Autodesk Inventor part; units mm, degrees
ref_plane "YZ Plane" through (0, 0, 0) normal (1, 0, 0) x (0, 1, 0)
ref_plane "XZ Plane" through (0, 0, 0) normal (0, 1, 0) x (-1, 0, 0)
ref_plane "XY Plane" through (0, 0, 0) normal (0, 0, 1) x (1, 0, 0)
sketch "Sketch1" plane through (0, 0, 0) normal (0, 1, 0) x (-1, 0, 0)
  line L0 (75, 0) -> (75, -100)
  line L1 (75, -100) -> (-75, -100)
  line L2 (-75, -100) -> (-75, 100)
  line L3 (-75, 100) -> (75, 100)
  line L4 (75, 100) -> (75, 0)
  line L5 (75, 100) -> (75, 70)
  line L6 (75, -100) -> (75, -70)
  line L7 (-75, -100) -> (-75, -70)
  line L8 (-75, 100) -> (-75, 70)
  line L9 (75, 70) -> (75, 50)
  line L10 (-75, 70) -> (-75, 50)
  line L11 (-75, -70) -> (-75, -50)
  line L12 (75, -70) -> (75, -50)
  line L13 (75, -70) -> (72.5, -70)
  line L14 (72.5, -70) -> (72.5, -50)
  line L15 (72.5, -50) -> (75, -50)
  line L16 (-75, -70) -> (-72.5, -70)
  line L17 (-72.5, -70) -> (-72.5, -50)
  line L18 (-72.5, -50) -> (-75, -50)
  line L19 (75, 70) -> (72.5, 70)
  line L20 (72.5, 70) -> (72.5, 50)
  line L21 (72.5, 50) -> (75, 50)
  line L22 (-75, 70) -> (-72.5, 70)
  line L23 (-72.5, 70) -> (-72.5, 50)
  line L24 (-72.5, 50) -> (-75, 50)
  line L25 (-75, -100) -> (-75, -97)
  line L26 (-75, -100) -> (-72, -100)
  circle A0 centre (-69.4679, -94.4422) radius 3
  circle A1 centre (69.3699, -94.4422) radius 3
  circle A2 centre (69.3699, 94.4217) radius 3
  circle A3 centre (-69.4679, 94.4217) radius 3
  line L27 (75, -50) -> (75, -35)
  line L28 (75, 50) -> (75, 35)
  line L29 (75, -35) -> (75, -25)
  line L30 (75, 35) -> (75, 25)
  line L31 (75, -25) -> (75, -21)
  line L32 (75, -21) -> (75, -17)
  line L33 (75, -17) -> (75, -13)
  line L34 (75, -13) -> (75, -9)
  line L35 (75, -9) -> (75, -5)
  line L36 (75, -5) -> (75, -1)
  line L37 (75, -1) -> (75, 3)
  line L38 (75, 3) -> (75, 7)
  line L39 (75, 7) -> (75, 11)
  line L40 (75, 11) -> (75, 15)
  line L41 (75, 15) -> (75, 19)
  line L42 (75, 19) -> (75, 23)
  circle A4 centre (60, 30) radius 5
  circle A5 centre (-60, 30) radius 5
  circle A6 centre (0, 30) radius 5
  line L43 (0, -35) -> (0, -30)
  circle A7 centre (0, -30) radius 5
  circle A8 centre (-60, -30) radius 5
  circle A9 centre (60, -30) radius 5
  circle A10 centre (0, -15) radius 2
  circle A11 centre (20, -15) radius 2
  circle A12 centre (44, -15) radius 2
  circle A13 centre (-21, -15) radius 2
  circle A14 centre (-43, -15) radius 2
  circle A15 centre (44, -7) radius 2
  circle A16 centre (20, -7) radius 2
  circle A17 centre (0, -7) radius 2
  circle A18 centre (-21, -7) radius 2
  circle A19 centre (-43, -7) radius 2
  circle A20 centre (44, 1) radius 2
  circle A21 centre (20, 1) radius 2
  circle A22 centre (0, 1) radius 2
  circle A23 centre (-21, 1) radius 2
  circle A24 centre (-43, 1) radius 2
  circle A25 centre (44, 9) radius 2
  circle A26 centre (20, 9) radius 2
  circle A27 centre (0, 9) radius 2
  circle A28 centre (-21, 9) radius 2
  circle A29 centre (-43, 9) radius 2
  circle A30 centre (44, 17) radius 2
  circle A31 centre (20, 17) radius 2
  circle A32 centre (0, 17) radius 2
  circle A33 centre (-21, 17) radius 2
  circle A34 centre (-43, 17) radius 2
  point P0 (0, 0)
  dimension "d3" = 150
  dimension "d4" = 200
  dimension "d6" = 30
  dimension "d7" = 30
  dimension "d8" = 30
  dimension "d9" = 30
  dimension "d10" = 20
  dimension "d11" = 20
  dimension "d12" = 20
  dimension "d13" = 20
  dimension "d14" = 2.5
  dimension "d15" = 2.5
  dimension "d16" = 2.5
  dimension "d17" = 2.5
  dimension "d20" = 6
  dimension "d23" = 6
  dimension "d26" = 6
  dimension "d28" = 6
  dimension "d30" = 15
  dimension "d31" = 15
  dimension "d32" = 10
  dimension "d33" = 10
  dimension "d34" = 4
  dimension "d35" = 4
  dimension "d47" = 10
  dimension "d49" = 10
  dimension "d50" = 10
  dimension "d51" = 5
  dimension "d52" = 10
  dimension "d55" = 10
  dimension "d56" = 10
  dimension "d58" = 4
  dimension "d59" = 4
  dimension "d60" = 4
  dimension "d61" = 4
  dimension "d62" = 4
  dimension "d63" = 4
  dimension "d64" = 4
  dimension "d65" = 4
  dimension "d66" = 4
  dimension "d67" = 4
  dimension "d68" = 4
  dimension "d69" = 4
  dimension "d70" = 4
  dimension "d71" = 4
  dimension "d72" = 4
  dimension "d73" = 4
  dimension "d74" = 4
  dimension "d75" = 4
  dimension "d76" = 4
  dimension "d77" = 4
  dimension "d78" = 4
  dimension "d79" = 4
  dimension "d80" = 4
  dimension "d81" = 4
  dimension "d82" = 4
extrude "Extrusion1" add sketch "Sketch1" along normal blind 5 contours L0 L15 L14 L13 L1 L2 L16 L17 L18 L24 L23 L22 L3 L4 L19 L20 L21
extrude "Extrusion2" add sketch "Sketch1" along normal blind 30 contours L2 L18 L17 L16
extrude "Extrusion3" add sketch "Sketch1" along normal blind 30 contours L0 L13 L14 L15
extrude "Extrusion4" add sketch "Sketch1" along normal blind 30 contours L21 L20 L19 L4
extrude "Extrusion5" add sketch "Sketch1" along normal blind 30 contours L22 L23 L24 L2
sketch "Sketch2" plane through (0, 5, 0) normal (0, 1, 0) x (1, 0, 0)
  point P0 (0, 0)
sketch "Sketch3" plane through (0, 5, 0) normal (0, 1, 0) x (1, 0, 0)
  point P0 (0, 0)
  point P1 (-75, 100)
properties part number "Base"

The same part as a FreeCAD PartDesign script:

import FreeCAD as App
import Part
import Sketcher
from FreeCAD import Vector

doc = App.newDocument("Part")
body = doc.addObject("PartDesign::Body", "Body")

sketch1 = body.newObject("Sketcher::SketchObject", "Sketch")
sketch1.AttachmentSupport = (doc.getObject("XZ_Plane"), [""])
sketch1.MapMode = "FlatFace"
sketch1.addGeometry([
    Part.LineSegment(Vector(-75, -50, 0), Vector(-75, 50, 0)),
    Part.LineSegment(Vector(-75, 50, 0), Vector(-72.5, 50, 0)),
    Part.LineSegment(Vector(-72.5, 50, 0), Vector(-72.5, 70, 0)),
    Part.LineSegment(Vector(-72.5, 70, 0), Vector(-75, 70, 0)),
    Part.LineSegment(Vector(-75, 70, 0), Vector(-75, 100, 0)),
    Part.LineSegment(Vector(-75, 100, 0), Vector(75, 100, 0)),
    Part.LineSegment(Vector(75, 100, 0), Vector(75, 70, 0)),
    Part.LineSegment(Vector(75, 70, 0), Vector(72.5, 70, 0)),
    Part.LineSegment(Vector(72.5, 70, 0), Vector(72.5, 50, 0)),
    Part.LineSegment(Vector(72.5, 50, 0), Vector(75, 50, 0)),
    Part.LineSegment(Vector(75, 50, 0), Vector(75, -50, 0)),
    Part.LineSegment(Vector(75, -50, 0), Vector(72.5, -50, 0)),
    Part.LineSegment(Vector(72.5, -50, 0), Vector(72.5, -70, 0)),
    Part.LineSegment(Vector(72.5, -70, 0), Vector(75, -70, 0)),
    Part.LineSegment(Vector(75, -70, 0), Vector(75, -100, 0)),
    Part.LineSegment(Vector(75, -100, 0), Vector(-75, -100, 0)),
    Part.LineSegment(Vector(-75, -100, 0), Vector(-75, -70, 0)),
    Part.LineSegment(Vector(-75, -70, 0), Vector(-72.5, -70, 0)),
    Part.LineSegment(Vector(-72.5, -70, 0), Vector(-72.5, -50, 0)),
    Part.LineSegment(Vector(-72.5, -50, 0), Vector(-75, -50, 0)),
    Part.Circle(Vector(69.4679, -94.4422, 0), Vector(0, 0, 1), 3),
    Part.Circle(Vector(60, -30, 0), Vector(0, 0, 1), 5),
    Part.Circle(Vector(43, -15, 0), Vector(0, 0, 1), 2),
    Part.Circle(Vector(43, -7, 0), Vector(0, 0, 1), 2),
    Part.Circle(Vector(21, -15, 0), Vector(0, 0, 1), 2),
    Part.Circle(Vector(21, -7, 0), Vector(0, 0, 1), 2),
    Part.Circle(Vector(-69.3699, -94.4422, 0), Vector(0, 0, 1), 3),
    Part.Circle(Vector(0, -30, 0), Vector(0, 0, 1), 5),
    Part.Circle(Vector(0, -15, 0), Vector(0, 0, 1), 2),
    Part.Circle(Vector(0, -7, 0), Vector(0, 0, 1), 2),
    Part.Circle(Vector(-20, -15, 0), Vector(0, 0, 1), 2),
    Part.Circle(Vector(-20, -7, 0), Vector(0, 0, 1), 2),
    Part.Circle(Vector(-60, -30, 0), Vector(0, 0, 1), 5),
    Part.Circle(Vector(-44, -15, 0), Vector(0, 0, 1), 2),
    Part.Circle(Vector(-44, -7, 0), Vector(0, 0, 1), 2),
    Part.Circle(Vector(43, 1, 0), Vector(0, 0, 1), 2),
    Part.Circle(Vector(43, 9, 0), Vector(0, 0, 1), 2),
    Part.Circle(Vector(43, 17, 0), Vector(0, 0, 1), 2),
    Part.Circle(Vector(60, 30, 0), Vector(0, 0, 1), 5),
    Part.Circle(Vector(21, 1, 0), Vector(0, 0, 1), 2),
    Part.Circle(Vector(21, 9, 0), Vector(0, 0, 1), 2),
    Part.Circle(Vector(21, 17, 0), Vector(0, 0, 1), 2),
    Part.Circle(Vector(69.4679, 94.4217, 0), Vector(0, 0, 1), 3),
    Part.Circle(Vector(0, 1, 0), Vector(0, 0, 1), 2),
    Part.Circle(Vector(0, 9, 0), Vector(0, 0, 1), 2),
    Part.Circle(Vector(0, 17, 0), Vector(0, 0, 1), 2),
    Part.Circle(Vector(-20, 1, 0), Vector(0, 0, 1), 2),
    Part.Circle(Vector(-20, 9, 0), Vector(0, 0, 1), 2),
    Part.Circle(Vector(-20, 17, 0), Vector(0, 0, 1), 2),
    Part.Circle(Vector(0, 30, 0), Vector(0, 0, 1), 5),
    Part.Circle(Vector(-44, 1, 0), Vector(0, 0, 1), 2),
    Part.Circle(Vector(-44, 9, 0), Vector(0, 0, 1), 2),
    Part.Circle(Vector(-44, 17, 0), Vector(0, 0, 1), 2),
    Part.Circle(Vector(-60, 30, 0), Vector(0, 0, 1), 5),
    Part.Circle(Vector(-69.3699, 94.4217, 0), Vector(0, 0, 1), 3),
], False)
sketch1.addConstraint([
    Sketcher.Constraint("Coincident", 0, 2, 1, 1),
    Sketcher.Constraint("Coincident", 1, 2, 2, 1),
    Sketcher.Constraint("Coincident", 2, 2, 3, 1),
    Sketcher.Constraint("Coincident", 3, 2, 4, 1),
    Sketcher.Constraint("Coincident", 4, 2, 5, 1),
    Sketcher.Constraint("Coincident", 5, 2, 6, 1),
    Sketcher.Constraint("Coincident", 6, 2, 7, 1),
    Sketcher.Constraint("Coincident", 7, 2, 8, 1),
    Sketcher.Constraint("Coincident", 8, 2, 9, 1),
    Sketcher.Constraint("Coincident", 9, 2, 10, 1),
    Sketcher.Constraint("Coincident", 10, 2, 11, 1),
    Sketcher.Constraint("Coincident", 11, 2, 12, 1),
    Sketcher.Constraint("Coincident", 12, 2, 13, 1),
    Sketcher.Constraint("Coincident", 13, 2, 14, 1),
    Sketcher.Constraint("Coincident", 14, 2, 15, 1),
    Sketcher.Constraint("Coincident", 15, 2, 16, 1),
    Sketcher.Constraint("Coincident", 16, 2, 17, 1),
    Sketcher.Constraint("Coincident", 17, 2, 18, 1),
    Sketcher.Constraint("Coincident", 18, 2, 19, 1),
    Sketcher.Constraint("Coincident", 19, 2, 0, 1),
    Sketcher.Constraint("Vertical", 0),
    Sketcher.Constraint("Horizontal", 1),
    Sketcher.Constraint("Vertical", 2),
    Sketcher.Constraint("Horizontal", 3),
    Sketcher.Constraint("Vertical", 4),
    Sketcher.Constraint("Horizontal", 5),
    Sketcher.Constraint("Vertical", 6),
    Sketcher.Constraint("Horizontal", 7),
    Sketcher.Constraint("Vertical", 8),
    Sketcher.Constraint("Horizontal", 9),
    Sketcher.Constraint("Vertical", 10),
    Sketcher.Constraint("Horizontal", 11),
    Sketcher.Constraint("Vertical", 12),
    Sketcher.Constraint("Horizontal", 13),
    Sketcher.Constraint("Vertical", 14),
    Sketcher.Constraint("Horizontal", 15),
    Sketcher.Constraint("Vertical", 16),
    Sketcher.Constraint("Horizontal", 17),
    Sketcher.Constraint("Vertical", 18),
    Sketcher.Constraint("Horizontal", 19),
    Sketcher.Constraint("Equal", 22, 23),
    Sketcher.Constraint("Equal", 23, 24),
    Sketcher.Constraint("Equal", 24, 25),
    Sketcher.Constraint("Equal", 20, 26),
    Sketcher.Constraint("Equal", 21, 27),
    Sketcher.Constraint("Equal", 25, 28),
    Sketcher.Constraint("Equal", 28, 29),
    Sketcher.Constraint("Equal", 29, 30),
    Sketcher.Constraint("Equal", 30, 31),
    Sketcher.Constraint("Equal", 27, 32),
    Sketcher.Constraint("Equal", 31, 33),
    Sketcher.Constraint("Equal", 33, 34),
    Sketcher.Constraint("Equal", 34, 35),
    Sketcher.Constraint("Equal", 35, 36),
    Sketcher.Constraint("Equal", 36, 37),
    Sketcher.Constraint("Equal", 32, 38),
    Sketcher.Constraint("Equal", 37, 39),
    Sketcher.Constraint("Equal", 39, 40),
    Sketcher.Constraint("Equal", 40, 41),
    Sketcher.Constraint("Equal", 26, 42),
    Sketcher.Constraint("Equal", 41, 43),
    Sketcher.Constraint("Equal", 43, 44),
    Sketcher.Constraint("Equal", 44, 45),
    Sketcher.Constraint("Equal", 45, 46),
    Sketcher.Constraint("Equal", 46, 47),
    Sketcher.Constraint("Equal", 47, 48),
    Sketcher.Constraint("Equal", 38, 49),
    Sketcher.Constraint("Equal", 48, 50),
    Sketcher.Constraint("Equal", 50, 51),
    Sketcher.Constraint("Equal", 51, 52),
    Sketcher.Constraint("Equal", 49, 53),
    Sketcher.Constraint("Equal", 42, 54),
    Sketcher.Constraint("Symmetric", 32, 3, 38, 3, -1, 1),
    Sketcher.Constraint("Symmetric", 27, 3, 49, 3, -1, 1),
    Sketcher.Constraint("Symmetric", 21, 3, 53, 3, -1, 1),
    Sketcher.Constraint("Symmetric", 0, 2, 10, 2, -1, 1),
    Sketcher.Constraint("Symmetric", 2, 2, 12, 2, -1, 1),
    Sketcher.Constraint("Symmetric", 4, 2, 14, 2, -1, 1),
    Sketcher.Constraint("Symmetric", 6, 2, 16, 2, -1, 1),
    Sketcher.Constraint("Symmetric", 8, 2, 18, 2, -1, 1),
    Sketcher.Constraint("Symmetric", 21, 3, 32, 3, -2),
    Sketcher.Constraint("Symmetric", 3, 2, 6, 2, -2),
    Sketcher.Constraint("Symmetric", 1, 2, 8, 2, -2),
    Sketcher.Constraint("PointOnObject", 27, 3, -2),
    Sketcher.Constraint("PointOnObject", 28, 3, -2),
    Sketcher.Constraint("PointOnObject", 29, 3, -2),
    Sketcher.Constraint("PointOnObject", 43, 3, -2),
    Sketcher.Constraint("PointOnObject", 44, 3, -2),
    Sketcher.Constraint("PointOnObject", 45, 3, -2),
    Sketcher.Constraint("Horizontal", 22, 3, 24, 3),
    Sketcher.Constraint("Horizontal", 23, 3, 25, 3),
    Sketcher.Constraint("Horizontal", 20, 3, 26, 3),
    Sketcher.Constraint("Horizontal", 21, 3, 27, 3),
    Sketcher.Constraint("Horizontal", 24, 3, 28, 3),
    Sketcher.Constraint("Horizontal", 25, 3, 29, 3),
    Sketcher.Constraint("Horizontal", 28, 3, 30, 3),
    Sketcher.Constraint("Horizontal", 29, 3, 31, 3),
    Sketcher.Constraint("Horizontal", 30, 3, 33, 3),
    Sketcher.Constraint("Horizontal", 31, 3, 34, 3),
    Sketcher.Constraint("Horizontal", 35, 3, 39, 3),
    Sketcher.Constraint("Horizontal", 36, 3, 40, 3),
    Sketcher.Constraint("Horizontal", 37, 3, 41, 3),
    Sketcher.Constraint("Horizontal", 39, 3, 43, 3),
    Sketcher.Constraint("Horizontal", 40, 3, 44, 3),
    Sketcher.Constraint("Horizontal", 41, 3, 45, 3),
    Sketcher.Constraint("Horizontal", 43, 3, 46, 3),
    Sketcher.Constraint("Horizontal", 44, 3, 47, 3),
    Sketcher.Constraint("Horizontal", 45, 3, 48, 3),
    Sketcher.Constraint("Horizontal", 46, 3, 50, 3),
    Sketcher.Constraint("Horizontal", 47, 3, 51, 3),
    Sketcher.Constraint("Horizontal", 48, 3, 52, 3),
    Sketcher.Constraint("Horizontal", 42, 3, 54, 3),
    Sketcher.Constraint("Vertical", 22, 3, 23, 3),
    Sketcher.Constraint("Vertical", 24, 3, 25, 3),
    Sketcher.Constraint("Vertical", 30, 3, 31, 3),
    Sketcher.Constraint("Vertical", 33, 3, 34, 3),
    Sketcher.Constraint("Vertical", 23, 3, 35, 3),
    Sketcher.Constraint("Vertical", 35, 3, 36, 3),
    Sketcher.Constraint("Vertical", 36, 3, 37, 3),
    Sketcher.Constraint("Vertical", 25, 3, 39, 3),
    Sketcher.Constraint("Vertical", 39, 3, 40, 3),
    Sketcher.Constraint("Vertical", 40, 3, 41, 3),
    Sketcher.Constraint("Vertical", 20, 3, 42, 3),
    Sketcher.Constraint("Vertical", 31, 3, 46, 3),
    Sketcher.Constraint("Vertical", 46, 3, 47, 3),
    Sketcher.Constraint("Vertical", 47, 3, 48, 3),
    Sketcher.Constraint("Vertical", 34, 3, 50, 3),
    Sketcher.Constraint("Vertical", 50, 3, 51, 3),
    Sketcher.Constraint("Vertical", 51, 3, 52, 3),
    Sketcher.Constraint("Vertical", 26, 3, 54, 3),
    Sketcher.Constraint("Vertical", 0, 2, 3, 2),
    Sketcher.Constraint("Diameter", 20, 6.0),
    Sketcher.Constraint("Diameter", 21, 10.0),
    Sketcher.Constraint("Diameter", 22, 4.0),
    Sketcher.Constraint("DistanceX", 5, 1, 5, 2, 150.0),
    Sketcher.Constraint("DistanceY", 2, 1, 2, 2, 20.0),
    Sketcher.Constraint("DistanceY", 4, 1, 4, 2, 30.0),
    Sketcher.Constraint("DistanceX", 1, 1, 1, 2, 2.5),
    Sketcher.Constraint("DistanceY", 21, 3, -1, 1, 30.0),
    Sketcher.Constraint("DistanceY", 22, 3, -1, 1, 15.0),
    Sketcher.Constraint("DistanceX", 30, 3, -1, 1, 20.0),
    Sketcher.Constraint("DistanceX", 0, 2, 53, 3, 15.0),
    Sketcher.Constraint("DistanceY", 53, 3, 0, 2, 20.0),
    Sketcher.Constraint("DistanceX", -1, 1, 22, 3, 43.0),
    Sketcher.Constraint("DistanceY", 23, 3, -1, 1, 7.0),
    Sketcher.Constraint("DistanceX", -1, 1, 24, 3, 21.0),
    Sketcher.Constraint("DistanceX", 33, 3, -1, 1, 44.0),
    Sketcher.Constraint("DistanceY", -1, 1, 35, 3, 1.0),
    Sketcher.Constraint("DistanceY", -1, 1, 36, 3, 9.0),
    Sketcher.Constraint("DistanceY", -1, 1, 37, 3, 17.0),
    Sketcher.Constraint("DistanceX", 26, 3, -1, 1, 69.37),
    Sketcher.Constraint("DistanceX", -1, 1, 20, 3, 69.468),
    Sketcher.Constraint("DistanceY", 20, 3, -1, 1, 94.4422),
    Sketcher.Constraint("DistanceY", -1, 1, 42, 3, 94.4217),
])
pad1 = body.newObject("PartDesign::Pad", "Pad")
pad1.Profile = sketch1
pad1.Length = 5
pad1.Reversed = True

sketch2 = body.newObject("Sketcher::SketchObject", "Sketch001")
sketch2.AttachmentSupport = (doc.getObject("XZ_Plane"), [""])
sketch2.MapMode = "FlatFace"
sketch2.addGeometry([
    Part.LineSegment(Vector(75, -50, 0), Vector(75, -70, 0)),
    Part.LineSegment(Vector(75, -70, 0), Vector(72.5, -70, 0)),
    Part.LineSegment(Vector(72.5, -70, 0), Vector(72.5, -50, 0)),
    Part.LineSegment(Vector(72.5, -50, 0), Vector(75, -50, 0)),
], False)
sketch2.addConstraint([
    Sketcher.Constraint("Coincident", 0, 2, 1, 1),
    Sketcher.Constraint("Coincident", 1, 2, 2, 1),
    Sketcher.Constraint("Coincident", 2, 2, 3, 1),
    Sketcher.Constraint("Coincident", 3, 2, 0, 1),
    Sketcher.Constraint("Vertical", 0),
    Sketcher.Constraint("Horizontal", 1),
    Sketcher.Constraint("Vertical", 2),
    Sketcher.Constraint("Horizontal", 3),
    Sketcher.Constraint("DistanceY", 0, 2, 0, 1, 20.0),
    Sketcher.Constraint("DistanceX", 1, 2, 1, 1, 2.5),
    Sketcher.Constraint("DistanceX", -1, 1, 0, 2, 75.0),
    Sketcher.Constraint("DistanceY", 0, 2, -1, 1, 70.0),
])
pad2 = body.newObject("PartDesign::Pad", "Pad001")
pad2.Profile = sketch2
pad2.Length = 30
pad2.Reversed = True

sketch3 = body.newObject("Sketcher::SketchObject", "Sketch002")
sketch3.AttachmentSupport = (doc.getObject("XZ_Plane"), [""])
sketch3.MapMode = "FlatFace"
sketch3.addGeometry([
    Part.LineSegment(Vector(-75, -70, 0), Vector(-75, -50, 0)),
    Part.LineSegment(Vector(-75, -50, 0), Vector(-72.5, -50, 0)),
    Part.LineSegment(Vector(-72.5, -50, 0), Vector(-72.5, -70, 0)),
    Part.LineSegment(Vector(-72.5, -70, 0), Vector(-75, -70, 0)),
], False)
sketch3.addConstraint([
    Sketcher.Constraint("Coincident", 0, 2, 1, 1),
    Sketcher.Constraint("Coincident", 1, 2, 2, 1),
    Sketcher.Constraint("Coincident", 2, 2, 3, 1),
    Sketcher.Constraint("Coincident", 3, 2, 0, 1),
    Sketcher.Constraint("Vertical", 0),
    Sketcher.Constraint("Horizontal", 1),
    Sketcher.Constraint("Vertical", 2),
    Sketcher.Constraint("Horizontal", 3),
    Sketcher.Constraint("DistanceY", 0, 1, 0, 2, 20.0),
    Sketcher.Constraint("DistanceX", 1, 1, 1, 2, 2.5),
    Sketcher.Constraint("DistanceX", 0, 2, -1, 1, 75.0),
    Sketcher.Constraint("DistanceY", 0, 2, -1, 1, 50.0),
])
pad3 = body.newObject("PartDesign::Pad", "Pad002")
pad3.Profile = sketch3
pad3.Length = 30
pad3.Reversed = True

sketch4 = body.newObject("Sketcher::SketchObject", "Sketch003")
sketch4.AttachmentSupport = (doc.getObject("XZ_Plane"), [""])
sketch4.MapMode = "FlatFace"
sketch4.addGeometry([
    Part.LineSegment(Vector(-72.5, 50, 0), Vector(-75, 50, 0)),
    Part.LineSegment(Vector(-75, 50, 0), Vector(-75, 70, 0)),
    Part.LineSegment(Vector(-75, 70, 0), Vector(-72.5, 70, 0)),
    Part.LineSegment(Vector(-72.5, 70, 0), Vector(-72.5, 50, 0)),
], False)
sketch4.addConstraint([
    Sketcher.Constraint("Coincident", 0, 2, 1, 1),
    Sketcher.Constraint("Coincident", 1, 2, 2, 1),
    Sketcher.Constraint("Coincident", 2, 2, 3, 1),
    Sketcher.Constraint("Coincident", 3, 2, 0, 1),
    Sketcher.Constraint("Horizontal", 0),
    Sketcher.Constraint("Vertical", 1),
    Sketcher.Constraint("Horizontal", 2),
    Sketcher.Constraint("Vertical", 3),
    Sketcher.Constraint("DistanceY", 1, 1, 1, 2, 20.0),
    Sketcher.Constraint("DistanceX", 0, 2, 0, 1, 2.5),
    Sketcher.Constraint("DistanceX", 0, 2, -1, 1, 75.0),
    Sketcher.Constraint("DistanceY", -1, 1, 0, 2, 50.0),
])
pad4 = body.newObject("PartDesign::Pad", "Pad003")
pad4.Profile = sketch4
pad4.Length = 30
pad4.Reversed = True

sketch5 = body.newObject("Sketcher::SketchObject", "Sketch004")
sketch5.AttachmentSupport = (doc.getObject("XZ_Plane"), [""])
sketch5.MapMode = "FlatFace"
sketch5.addGeometry([
    Part.LineSegment(Vector(72.5, 70, 0), Vector(75, 70, 0)),
    Part.LineSegment(Vector(75, 70, 0), Vector(75, 50, 0)),
    Part.LineSegment(Vector(75, 50, 0), Vector(72.5, 50, 0)),
    Part.LineSegment(Vector(72.5, 50, 0), Vector(72.5, 70, 0)),
], False)
sketch5.addConstraint([
    Sketcher.Constraint("Coincident", 0, 2, 1, 1),
    Sketcher.Constraint("Coincident", 1, 2, 2, 1),
    Sketcher.Constraint("Coincident", 2, 2, 3, 1),
    Sketcher.Constraint("Coincident", 3, 2, 0, 1),
    Sketcher.Constraint("Horizontal", 0),
    Sketcher.Constraint("Vertical", 1),
    Sketcher.Constraint("Horizontal", 2),
    Sketcher.Constraint("Vertical", 3),
    Sketcher.Constraint("DistanceY", 1, 2, 1, 1, 20.0),
    Sketcher.Constraint("DistanceX", 0, 1, 0, 2, 2.5),
    Sketcher.Constraint("DistanceX", -1, 1, 0, 2, 75.0),
    Sketcher.Constraint("DistanceY", -1, 1, 0, 2, 70.0),
])
pad5 = body.newObject("PartDesign::Pad", "Pad004")
pad5.Profile = sketch5
pad5.Length = 30
pad5.Reversed = True

doc.recompute()
